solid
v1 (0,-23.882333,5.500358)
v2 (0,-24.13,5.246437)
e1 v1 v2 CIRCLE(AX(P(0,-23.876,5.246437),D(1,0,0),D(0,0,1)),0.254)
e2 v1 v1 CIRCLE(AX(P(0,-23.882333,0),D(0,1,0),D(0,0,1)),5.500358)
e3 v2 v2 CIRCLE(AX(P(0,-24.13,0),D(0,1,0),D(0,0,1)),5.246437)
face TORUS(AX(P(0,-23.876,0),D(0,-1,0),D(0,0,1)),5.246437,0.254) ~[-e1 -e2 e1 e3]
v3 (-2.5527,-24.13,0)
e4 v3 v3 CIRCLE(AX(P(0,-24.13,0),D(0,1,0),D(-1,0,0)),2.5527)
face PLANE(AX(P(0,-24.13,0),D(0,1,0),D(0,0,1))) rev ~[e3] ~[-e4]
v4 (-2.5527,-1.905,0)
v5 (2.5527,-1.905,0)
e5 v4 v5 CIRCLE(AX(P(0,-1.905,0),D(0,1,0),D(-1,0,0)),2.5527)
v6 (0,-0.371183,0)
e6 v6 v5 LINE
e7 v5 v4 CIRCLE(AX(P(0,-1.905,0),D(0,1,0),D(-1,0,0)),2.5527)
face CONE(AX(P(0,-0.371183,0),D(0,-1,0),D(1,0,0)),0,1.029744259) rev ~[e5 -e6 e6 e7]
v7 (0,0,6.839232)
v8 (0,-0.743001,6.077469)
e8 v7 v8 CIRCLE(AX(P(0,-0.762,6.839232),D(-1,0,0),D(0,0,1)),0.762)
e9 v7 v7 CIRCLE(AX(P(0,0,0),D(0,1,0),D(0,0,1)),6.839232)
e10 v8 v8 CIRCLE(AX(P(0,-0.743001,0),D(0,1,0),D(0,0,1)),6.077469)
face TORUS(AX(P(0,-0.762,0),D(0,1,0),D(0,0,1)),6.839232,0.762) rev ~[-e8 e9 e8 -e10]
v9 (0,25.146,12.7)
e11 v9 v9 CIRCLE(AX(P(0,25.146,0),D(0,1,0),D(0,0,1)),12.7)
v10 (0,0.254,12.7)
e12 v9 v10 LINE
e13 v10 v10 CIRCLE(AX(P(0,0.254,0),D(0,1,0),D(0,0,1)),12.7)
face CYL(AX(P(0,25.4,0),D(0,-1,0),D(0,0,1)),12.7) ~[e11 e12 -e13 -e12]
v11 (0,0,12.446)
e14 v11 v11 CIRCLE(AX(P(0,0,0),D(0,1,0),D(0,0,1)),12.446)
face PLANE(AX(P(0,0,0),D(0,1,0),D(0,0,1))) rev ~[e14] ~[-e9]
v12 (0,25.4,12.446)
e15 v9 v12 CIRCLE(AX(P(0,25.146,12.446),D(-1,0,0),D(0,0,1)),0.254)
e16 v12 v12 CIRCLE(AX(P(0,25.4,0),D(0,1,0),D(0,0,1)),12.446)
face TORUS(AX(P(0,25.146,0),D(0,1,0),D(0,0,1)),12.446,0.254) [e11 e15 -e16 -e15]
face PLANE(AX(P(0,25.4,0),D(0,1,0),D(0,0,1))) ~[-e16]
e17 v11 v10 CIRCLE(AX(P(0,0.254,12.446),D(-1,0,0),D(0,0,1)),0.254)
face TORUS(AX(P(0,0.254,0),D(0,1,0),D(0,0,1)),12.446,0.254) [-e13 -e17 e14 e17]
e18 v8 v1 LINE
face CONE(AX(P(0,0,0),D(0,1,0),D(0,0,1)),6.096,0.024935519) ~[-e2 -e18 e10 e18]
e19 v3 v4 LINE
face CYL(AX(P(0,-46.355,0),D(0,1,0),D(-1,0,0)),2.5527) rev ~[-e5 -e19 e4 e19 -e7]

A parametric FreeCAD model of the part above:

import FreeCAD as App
import Part
import Sketcher
Q = App.Units.Quantity


def edges_at(feature, points):
    """Names of the edges that pass closest to the given points."""
    edges = feature.Shape.Edges
    near = lambda p: min(range(len(edges)), key=lambda i: edges[i].distToShape(Part.Vertex(*p))[0])
    return sorted({f"Edge{near(p) + 1}" for p in points})


def add_polygon(sketch, points):
    """Adds a closed chain of lines whose ends are joined by coincident constraints."""
    first, n = sketch.GeometryCount, len(points)
    for a, b in zip(points, points[1:] + points[:1]):
        sketch.addGeometry(Part.LineSegment(App.Vector(*a, 0), App.Vector(*b, 0)), False)
    for i in range(n):
        sketch.addConstraint(Sketcher.Constraint("Coincident", first + i, 2, first + (i + 1) % n, 1))

doc = App.newDocument("Part")
params = doc.addObject("Spreadsheet::Sheet", "Params")
for row, (alias, value) in enumerate([
    ("sketch1_width", "1 in"),
    ("sketch1_height", "0.5 in"),
    ("sketch1_width2", "1.95 in"),
    ("sketch1_height2", "0.26 in"),
    ("revolution_angle", "360 deg"),
    ("sketch2_diameter", "0.201 in"),
    ("hole_diameter", "0.201 in"),
    ("hole_depth", "0.875 in"),
    ("fillet_radius", "0.03 in"),
    ("fillet2_radius", "0.01 in"),
], start=1):
    params.set(f"A{row}", alias)
    params.set(f"B{row}", "=" + value)
    params.setAlias(f"B{row}", alias)

body = doc.addObject("PartDesign::Body", "Body")

# Sketch on YZ plane
sketch1 = body.newObject("Sketcher::SketchObject", "Sketch")
sketch1.AttachmentSupport = (doc.getObject("YZ_Plane"), [""])
sketch1.MapMode = "FlatFace"
add_polygon(sketch1, [(-24, 0), (25, 0), (25, 13), (0, 13), (0, 6), (-24, 5)])  # lines 0-5
sketch1.addConstraint(Sketcher.Constraint("Horizontal", 0))
sketch1.addConstraint(Sketcher.Constraint("Vertical", 1))
sketch1.addConstraint(Sketcher.Constraint("Horizontal", 2))
sketch1.addConstraint(Sketcher.Constraint("Vertical", 3))
sketch1.addConstraint(Sketcher.Constraint("Vertical", 5))
sketch1.addConstraint(Sketcher.Constraint("PointOnObject", 0, 2, -1))
sketch1.addConstraint(Sketcher.Constraint("PointOnObject", 2, 2, -2))
sketch1.addConstraint(Sketcher.Constraint("DistanceX", 2, 2, 2, 1, Q("1 in")))
sketch1.addConstraint(Sketcher.Constraint("DistanceY", 1, 1, 1, 2, Q("0.5 in")))
sketch1.addConstraint(Sketcher.Constraint("DistanceX", 0, 1, 0, 2, Q("1.95 in")))
sketch1.addConstraint(Sketcher.Constraint("DistanceY", 3, 2, 3, 1, Q("0.26 in")))
sketch1.addConstraint(Sketcher.Constraint("DistanceY", 5, 2, 5, 1, Q("5.494181 mm")))
sketch1.setExpression("Constraints[13]", "Params.sketch1_width")
sketch1.setExpression("Constraints[14]", "Params.sketch1_height")
sketch1.setExpression("Constraints[15]", "Params.sketch1_width2")
sketch1.setExpression("Constraints[16]", "Params.sketch1_height2")
revolution = body.newObject("PartDesign::Revolution", "Revolution")
revolution.Profile = sketch1
revolution.ReferenceAxis = (sketch1, ["H_Axis"])
revolution.setExpression("Angle", "Params.revolution_angle")

# Sketch on XZ plane
sketch2 = body.newObject("Sketcher::SketchObject", "Sketch001")
sketch2.AttachmentSupport = (doc.getObject("XZ_Plane"), [""])
sketch2.MapMode = "FlatFace"
sketch2.AttachmentOffset = App.Placement(App.Vector(0, 0, 0.95 * 25.4), App.Rotation())
sketch2.addGeometry(Part.Circle(App.Vector(0, 0, 0), App.Vector(0, 0, 1), 2.6), False)
sketch2.addConstraint(Sketcher.Constraint("Coincident", 0, 3, -1, 1))
sketch2.addConstraint(Sketcher.Constraint("Diameter", 0, Q("0.201 in")))
sketch2.setExpression("Constraints[1]", "Params.sketch2_diameter")
doc.recompute()
hole = body.newObject("PartDesign::Hole", "Hole")
hole.Profile = sketch2
hole.ThreadType = "None"
hole.setExpression("Diameter", "Params.hole_diameter")
hole.DepthType = "Dimension"
hole.setExpression("Depth", "Params.hole_depth")
hole.DrillPoint = "Angled"
hole.DrillPointAngle = 118
doc.recompute()

fillet = body.newObject("PartDesign::Fillet", "Fillet")
fillet.Base = (hole, edges_at(hole, [(0, 0, -6.096)]))
fillet.setExpression("Radius", "Params.fillet_radius")
doc.recompute()

fillet2 = body.newObject("PartDesign::Fillet", "Fillet001")
fillet2.Base = (fillet, edges_at(fillet, [(0, 0, -12.7), (0, 25.4, -12.7), (0, -24.13, -5.494)]))
fillet2.setExpression("Radius", "Params.fillet2_radius")

doc.recompute()
